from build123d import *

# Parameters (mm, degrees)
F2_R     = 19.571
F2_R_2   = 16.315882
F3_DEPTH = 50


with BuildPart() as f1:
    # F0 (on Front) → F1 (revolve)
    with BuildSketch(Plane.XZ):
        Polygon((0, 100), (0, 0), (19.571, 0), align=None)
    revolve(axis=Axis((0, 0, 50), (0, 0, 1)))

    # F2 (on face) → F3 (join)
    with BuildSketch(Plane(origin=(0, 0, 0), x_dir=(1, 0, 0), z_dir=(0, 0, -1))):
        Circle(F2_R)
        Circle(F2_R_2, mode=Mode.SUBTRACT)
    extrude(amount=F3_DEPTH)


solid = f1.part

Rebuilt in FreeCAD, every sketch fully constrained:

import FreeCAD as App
import Part
import Sketcher
Q = App.Units.Quantity


def add_polygon(sketch, points):
    """Adds a closed chain of lines whose ends are joined by coincident constraints."""
    first, n = sketch.GeometryCount, len(points)
    for a, b in zip(points, points[1:] + points[:1]):
        sketch.addGeometry(Part.LineSegment(App.Vector(*a, 0), App.Vector(*b, 0)), False)
    for i in range(n):
        sketch.addConstraint(Sketcher.Constraint("Coincident", first + i, 2, first + (i + 1) % n, 1))

doc = App.newDocument("Part")
params = doc.addObject("Spreadsheet::Sheet", "Params")
for row, (alias, value) in enumerate([
    ("sketch1_height", "100 mm"),
    ("revolution_angle", "360 deg"),
    ("pad1_length", "50 mm"),
], start=1):
    params.set(f"A{row}", alias)
    params.set(f"B{row}", "=" + value)
    params.setAlias(f"B{row}", alias)

body = doc.addObject("PartDesign::Body", "Body")

# Sketch on XZ plane
sketch1 = doc.addObject("Sketcher::SketchObject", "Sketch")
body.addObject(sketch1)
sketch1.AttachmentSupport = (doc.XZ_Plane, [""])
sketch1.MapMode = "FlatFace"
add_polygon(sketch1, [(0, 100), (0, 0), (20, 0)])  # lines 0-2
sketch1.addConstraint([
    Sketcher.Constraint("Vertical", 0),
    Sketcher.Constraint("Horizontal", 1),
    Sketcher.Constraint("Coincident", 0, 2, -1, 1),
    Sketcher.Constraint("DistanceY", 0, 2, 0, 1, Q("100 mm")),
    Sketcher.Constraint("DistanceX", 1, 1, 1, 2, Q("19.571 mm")),
])
sketch1.setExpression("Constraints[6]", "Params.sketch1_height")
revolution = doc.addObject("PartDesign::Revolution", "Revolution")
body.addObject(revolution)
revolution.Profile = sketch1
revolution.ReferenceAxis = (sketch1, ["V_Axis"])
revolution.setExpression("Angle", "Params.revolution_angle")

# Sketch on XY plane
sketch2 = doc.addObject("Sketcher::SketchObject", "Sketch001")
body.addObject(sketch2)
sketch2.AttachmentSupport = (doc.XY_Plane, [""])
sketch2.MapMode = "FlatFace"
sketch2.addGeometry([
    Part.Circle(App.Vector(0, 0, 0), App.Vector(0, 0, 1), 20),
    Part.Circle(App.Vector(0, 0, 0), App.Vector(0, 0, 1), 16),
], False)
sketch2.addConstraint([
    Sketcher.Constraint("Coincident", 0, 3, -1, 1),
    Sketcher.Constraint("Coincident", 1, 3, -1, 1),
    Sketcher.Constraint("Diameter", 0, Q("39.142 mm")),
    Sketcher.Constraint("Diameter", 1, Q("32.631764 mm")),
])
pad1 = doc.addObject("PartDesign::Pad", "Pad")
body.addObject(pad1)
pad1.Profile = sketch2
pad1.setExpression("Length", "Params.pad1_length")
pad1.Reversed = True

doc.recompute()
